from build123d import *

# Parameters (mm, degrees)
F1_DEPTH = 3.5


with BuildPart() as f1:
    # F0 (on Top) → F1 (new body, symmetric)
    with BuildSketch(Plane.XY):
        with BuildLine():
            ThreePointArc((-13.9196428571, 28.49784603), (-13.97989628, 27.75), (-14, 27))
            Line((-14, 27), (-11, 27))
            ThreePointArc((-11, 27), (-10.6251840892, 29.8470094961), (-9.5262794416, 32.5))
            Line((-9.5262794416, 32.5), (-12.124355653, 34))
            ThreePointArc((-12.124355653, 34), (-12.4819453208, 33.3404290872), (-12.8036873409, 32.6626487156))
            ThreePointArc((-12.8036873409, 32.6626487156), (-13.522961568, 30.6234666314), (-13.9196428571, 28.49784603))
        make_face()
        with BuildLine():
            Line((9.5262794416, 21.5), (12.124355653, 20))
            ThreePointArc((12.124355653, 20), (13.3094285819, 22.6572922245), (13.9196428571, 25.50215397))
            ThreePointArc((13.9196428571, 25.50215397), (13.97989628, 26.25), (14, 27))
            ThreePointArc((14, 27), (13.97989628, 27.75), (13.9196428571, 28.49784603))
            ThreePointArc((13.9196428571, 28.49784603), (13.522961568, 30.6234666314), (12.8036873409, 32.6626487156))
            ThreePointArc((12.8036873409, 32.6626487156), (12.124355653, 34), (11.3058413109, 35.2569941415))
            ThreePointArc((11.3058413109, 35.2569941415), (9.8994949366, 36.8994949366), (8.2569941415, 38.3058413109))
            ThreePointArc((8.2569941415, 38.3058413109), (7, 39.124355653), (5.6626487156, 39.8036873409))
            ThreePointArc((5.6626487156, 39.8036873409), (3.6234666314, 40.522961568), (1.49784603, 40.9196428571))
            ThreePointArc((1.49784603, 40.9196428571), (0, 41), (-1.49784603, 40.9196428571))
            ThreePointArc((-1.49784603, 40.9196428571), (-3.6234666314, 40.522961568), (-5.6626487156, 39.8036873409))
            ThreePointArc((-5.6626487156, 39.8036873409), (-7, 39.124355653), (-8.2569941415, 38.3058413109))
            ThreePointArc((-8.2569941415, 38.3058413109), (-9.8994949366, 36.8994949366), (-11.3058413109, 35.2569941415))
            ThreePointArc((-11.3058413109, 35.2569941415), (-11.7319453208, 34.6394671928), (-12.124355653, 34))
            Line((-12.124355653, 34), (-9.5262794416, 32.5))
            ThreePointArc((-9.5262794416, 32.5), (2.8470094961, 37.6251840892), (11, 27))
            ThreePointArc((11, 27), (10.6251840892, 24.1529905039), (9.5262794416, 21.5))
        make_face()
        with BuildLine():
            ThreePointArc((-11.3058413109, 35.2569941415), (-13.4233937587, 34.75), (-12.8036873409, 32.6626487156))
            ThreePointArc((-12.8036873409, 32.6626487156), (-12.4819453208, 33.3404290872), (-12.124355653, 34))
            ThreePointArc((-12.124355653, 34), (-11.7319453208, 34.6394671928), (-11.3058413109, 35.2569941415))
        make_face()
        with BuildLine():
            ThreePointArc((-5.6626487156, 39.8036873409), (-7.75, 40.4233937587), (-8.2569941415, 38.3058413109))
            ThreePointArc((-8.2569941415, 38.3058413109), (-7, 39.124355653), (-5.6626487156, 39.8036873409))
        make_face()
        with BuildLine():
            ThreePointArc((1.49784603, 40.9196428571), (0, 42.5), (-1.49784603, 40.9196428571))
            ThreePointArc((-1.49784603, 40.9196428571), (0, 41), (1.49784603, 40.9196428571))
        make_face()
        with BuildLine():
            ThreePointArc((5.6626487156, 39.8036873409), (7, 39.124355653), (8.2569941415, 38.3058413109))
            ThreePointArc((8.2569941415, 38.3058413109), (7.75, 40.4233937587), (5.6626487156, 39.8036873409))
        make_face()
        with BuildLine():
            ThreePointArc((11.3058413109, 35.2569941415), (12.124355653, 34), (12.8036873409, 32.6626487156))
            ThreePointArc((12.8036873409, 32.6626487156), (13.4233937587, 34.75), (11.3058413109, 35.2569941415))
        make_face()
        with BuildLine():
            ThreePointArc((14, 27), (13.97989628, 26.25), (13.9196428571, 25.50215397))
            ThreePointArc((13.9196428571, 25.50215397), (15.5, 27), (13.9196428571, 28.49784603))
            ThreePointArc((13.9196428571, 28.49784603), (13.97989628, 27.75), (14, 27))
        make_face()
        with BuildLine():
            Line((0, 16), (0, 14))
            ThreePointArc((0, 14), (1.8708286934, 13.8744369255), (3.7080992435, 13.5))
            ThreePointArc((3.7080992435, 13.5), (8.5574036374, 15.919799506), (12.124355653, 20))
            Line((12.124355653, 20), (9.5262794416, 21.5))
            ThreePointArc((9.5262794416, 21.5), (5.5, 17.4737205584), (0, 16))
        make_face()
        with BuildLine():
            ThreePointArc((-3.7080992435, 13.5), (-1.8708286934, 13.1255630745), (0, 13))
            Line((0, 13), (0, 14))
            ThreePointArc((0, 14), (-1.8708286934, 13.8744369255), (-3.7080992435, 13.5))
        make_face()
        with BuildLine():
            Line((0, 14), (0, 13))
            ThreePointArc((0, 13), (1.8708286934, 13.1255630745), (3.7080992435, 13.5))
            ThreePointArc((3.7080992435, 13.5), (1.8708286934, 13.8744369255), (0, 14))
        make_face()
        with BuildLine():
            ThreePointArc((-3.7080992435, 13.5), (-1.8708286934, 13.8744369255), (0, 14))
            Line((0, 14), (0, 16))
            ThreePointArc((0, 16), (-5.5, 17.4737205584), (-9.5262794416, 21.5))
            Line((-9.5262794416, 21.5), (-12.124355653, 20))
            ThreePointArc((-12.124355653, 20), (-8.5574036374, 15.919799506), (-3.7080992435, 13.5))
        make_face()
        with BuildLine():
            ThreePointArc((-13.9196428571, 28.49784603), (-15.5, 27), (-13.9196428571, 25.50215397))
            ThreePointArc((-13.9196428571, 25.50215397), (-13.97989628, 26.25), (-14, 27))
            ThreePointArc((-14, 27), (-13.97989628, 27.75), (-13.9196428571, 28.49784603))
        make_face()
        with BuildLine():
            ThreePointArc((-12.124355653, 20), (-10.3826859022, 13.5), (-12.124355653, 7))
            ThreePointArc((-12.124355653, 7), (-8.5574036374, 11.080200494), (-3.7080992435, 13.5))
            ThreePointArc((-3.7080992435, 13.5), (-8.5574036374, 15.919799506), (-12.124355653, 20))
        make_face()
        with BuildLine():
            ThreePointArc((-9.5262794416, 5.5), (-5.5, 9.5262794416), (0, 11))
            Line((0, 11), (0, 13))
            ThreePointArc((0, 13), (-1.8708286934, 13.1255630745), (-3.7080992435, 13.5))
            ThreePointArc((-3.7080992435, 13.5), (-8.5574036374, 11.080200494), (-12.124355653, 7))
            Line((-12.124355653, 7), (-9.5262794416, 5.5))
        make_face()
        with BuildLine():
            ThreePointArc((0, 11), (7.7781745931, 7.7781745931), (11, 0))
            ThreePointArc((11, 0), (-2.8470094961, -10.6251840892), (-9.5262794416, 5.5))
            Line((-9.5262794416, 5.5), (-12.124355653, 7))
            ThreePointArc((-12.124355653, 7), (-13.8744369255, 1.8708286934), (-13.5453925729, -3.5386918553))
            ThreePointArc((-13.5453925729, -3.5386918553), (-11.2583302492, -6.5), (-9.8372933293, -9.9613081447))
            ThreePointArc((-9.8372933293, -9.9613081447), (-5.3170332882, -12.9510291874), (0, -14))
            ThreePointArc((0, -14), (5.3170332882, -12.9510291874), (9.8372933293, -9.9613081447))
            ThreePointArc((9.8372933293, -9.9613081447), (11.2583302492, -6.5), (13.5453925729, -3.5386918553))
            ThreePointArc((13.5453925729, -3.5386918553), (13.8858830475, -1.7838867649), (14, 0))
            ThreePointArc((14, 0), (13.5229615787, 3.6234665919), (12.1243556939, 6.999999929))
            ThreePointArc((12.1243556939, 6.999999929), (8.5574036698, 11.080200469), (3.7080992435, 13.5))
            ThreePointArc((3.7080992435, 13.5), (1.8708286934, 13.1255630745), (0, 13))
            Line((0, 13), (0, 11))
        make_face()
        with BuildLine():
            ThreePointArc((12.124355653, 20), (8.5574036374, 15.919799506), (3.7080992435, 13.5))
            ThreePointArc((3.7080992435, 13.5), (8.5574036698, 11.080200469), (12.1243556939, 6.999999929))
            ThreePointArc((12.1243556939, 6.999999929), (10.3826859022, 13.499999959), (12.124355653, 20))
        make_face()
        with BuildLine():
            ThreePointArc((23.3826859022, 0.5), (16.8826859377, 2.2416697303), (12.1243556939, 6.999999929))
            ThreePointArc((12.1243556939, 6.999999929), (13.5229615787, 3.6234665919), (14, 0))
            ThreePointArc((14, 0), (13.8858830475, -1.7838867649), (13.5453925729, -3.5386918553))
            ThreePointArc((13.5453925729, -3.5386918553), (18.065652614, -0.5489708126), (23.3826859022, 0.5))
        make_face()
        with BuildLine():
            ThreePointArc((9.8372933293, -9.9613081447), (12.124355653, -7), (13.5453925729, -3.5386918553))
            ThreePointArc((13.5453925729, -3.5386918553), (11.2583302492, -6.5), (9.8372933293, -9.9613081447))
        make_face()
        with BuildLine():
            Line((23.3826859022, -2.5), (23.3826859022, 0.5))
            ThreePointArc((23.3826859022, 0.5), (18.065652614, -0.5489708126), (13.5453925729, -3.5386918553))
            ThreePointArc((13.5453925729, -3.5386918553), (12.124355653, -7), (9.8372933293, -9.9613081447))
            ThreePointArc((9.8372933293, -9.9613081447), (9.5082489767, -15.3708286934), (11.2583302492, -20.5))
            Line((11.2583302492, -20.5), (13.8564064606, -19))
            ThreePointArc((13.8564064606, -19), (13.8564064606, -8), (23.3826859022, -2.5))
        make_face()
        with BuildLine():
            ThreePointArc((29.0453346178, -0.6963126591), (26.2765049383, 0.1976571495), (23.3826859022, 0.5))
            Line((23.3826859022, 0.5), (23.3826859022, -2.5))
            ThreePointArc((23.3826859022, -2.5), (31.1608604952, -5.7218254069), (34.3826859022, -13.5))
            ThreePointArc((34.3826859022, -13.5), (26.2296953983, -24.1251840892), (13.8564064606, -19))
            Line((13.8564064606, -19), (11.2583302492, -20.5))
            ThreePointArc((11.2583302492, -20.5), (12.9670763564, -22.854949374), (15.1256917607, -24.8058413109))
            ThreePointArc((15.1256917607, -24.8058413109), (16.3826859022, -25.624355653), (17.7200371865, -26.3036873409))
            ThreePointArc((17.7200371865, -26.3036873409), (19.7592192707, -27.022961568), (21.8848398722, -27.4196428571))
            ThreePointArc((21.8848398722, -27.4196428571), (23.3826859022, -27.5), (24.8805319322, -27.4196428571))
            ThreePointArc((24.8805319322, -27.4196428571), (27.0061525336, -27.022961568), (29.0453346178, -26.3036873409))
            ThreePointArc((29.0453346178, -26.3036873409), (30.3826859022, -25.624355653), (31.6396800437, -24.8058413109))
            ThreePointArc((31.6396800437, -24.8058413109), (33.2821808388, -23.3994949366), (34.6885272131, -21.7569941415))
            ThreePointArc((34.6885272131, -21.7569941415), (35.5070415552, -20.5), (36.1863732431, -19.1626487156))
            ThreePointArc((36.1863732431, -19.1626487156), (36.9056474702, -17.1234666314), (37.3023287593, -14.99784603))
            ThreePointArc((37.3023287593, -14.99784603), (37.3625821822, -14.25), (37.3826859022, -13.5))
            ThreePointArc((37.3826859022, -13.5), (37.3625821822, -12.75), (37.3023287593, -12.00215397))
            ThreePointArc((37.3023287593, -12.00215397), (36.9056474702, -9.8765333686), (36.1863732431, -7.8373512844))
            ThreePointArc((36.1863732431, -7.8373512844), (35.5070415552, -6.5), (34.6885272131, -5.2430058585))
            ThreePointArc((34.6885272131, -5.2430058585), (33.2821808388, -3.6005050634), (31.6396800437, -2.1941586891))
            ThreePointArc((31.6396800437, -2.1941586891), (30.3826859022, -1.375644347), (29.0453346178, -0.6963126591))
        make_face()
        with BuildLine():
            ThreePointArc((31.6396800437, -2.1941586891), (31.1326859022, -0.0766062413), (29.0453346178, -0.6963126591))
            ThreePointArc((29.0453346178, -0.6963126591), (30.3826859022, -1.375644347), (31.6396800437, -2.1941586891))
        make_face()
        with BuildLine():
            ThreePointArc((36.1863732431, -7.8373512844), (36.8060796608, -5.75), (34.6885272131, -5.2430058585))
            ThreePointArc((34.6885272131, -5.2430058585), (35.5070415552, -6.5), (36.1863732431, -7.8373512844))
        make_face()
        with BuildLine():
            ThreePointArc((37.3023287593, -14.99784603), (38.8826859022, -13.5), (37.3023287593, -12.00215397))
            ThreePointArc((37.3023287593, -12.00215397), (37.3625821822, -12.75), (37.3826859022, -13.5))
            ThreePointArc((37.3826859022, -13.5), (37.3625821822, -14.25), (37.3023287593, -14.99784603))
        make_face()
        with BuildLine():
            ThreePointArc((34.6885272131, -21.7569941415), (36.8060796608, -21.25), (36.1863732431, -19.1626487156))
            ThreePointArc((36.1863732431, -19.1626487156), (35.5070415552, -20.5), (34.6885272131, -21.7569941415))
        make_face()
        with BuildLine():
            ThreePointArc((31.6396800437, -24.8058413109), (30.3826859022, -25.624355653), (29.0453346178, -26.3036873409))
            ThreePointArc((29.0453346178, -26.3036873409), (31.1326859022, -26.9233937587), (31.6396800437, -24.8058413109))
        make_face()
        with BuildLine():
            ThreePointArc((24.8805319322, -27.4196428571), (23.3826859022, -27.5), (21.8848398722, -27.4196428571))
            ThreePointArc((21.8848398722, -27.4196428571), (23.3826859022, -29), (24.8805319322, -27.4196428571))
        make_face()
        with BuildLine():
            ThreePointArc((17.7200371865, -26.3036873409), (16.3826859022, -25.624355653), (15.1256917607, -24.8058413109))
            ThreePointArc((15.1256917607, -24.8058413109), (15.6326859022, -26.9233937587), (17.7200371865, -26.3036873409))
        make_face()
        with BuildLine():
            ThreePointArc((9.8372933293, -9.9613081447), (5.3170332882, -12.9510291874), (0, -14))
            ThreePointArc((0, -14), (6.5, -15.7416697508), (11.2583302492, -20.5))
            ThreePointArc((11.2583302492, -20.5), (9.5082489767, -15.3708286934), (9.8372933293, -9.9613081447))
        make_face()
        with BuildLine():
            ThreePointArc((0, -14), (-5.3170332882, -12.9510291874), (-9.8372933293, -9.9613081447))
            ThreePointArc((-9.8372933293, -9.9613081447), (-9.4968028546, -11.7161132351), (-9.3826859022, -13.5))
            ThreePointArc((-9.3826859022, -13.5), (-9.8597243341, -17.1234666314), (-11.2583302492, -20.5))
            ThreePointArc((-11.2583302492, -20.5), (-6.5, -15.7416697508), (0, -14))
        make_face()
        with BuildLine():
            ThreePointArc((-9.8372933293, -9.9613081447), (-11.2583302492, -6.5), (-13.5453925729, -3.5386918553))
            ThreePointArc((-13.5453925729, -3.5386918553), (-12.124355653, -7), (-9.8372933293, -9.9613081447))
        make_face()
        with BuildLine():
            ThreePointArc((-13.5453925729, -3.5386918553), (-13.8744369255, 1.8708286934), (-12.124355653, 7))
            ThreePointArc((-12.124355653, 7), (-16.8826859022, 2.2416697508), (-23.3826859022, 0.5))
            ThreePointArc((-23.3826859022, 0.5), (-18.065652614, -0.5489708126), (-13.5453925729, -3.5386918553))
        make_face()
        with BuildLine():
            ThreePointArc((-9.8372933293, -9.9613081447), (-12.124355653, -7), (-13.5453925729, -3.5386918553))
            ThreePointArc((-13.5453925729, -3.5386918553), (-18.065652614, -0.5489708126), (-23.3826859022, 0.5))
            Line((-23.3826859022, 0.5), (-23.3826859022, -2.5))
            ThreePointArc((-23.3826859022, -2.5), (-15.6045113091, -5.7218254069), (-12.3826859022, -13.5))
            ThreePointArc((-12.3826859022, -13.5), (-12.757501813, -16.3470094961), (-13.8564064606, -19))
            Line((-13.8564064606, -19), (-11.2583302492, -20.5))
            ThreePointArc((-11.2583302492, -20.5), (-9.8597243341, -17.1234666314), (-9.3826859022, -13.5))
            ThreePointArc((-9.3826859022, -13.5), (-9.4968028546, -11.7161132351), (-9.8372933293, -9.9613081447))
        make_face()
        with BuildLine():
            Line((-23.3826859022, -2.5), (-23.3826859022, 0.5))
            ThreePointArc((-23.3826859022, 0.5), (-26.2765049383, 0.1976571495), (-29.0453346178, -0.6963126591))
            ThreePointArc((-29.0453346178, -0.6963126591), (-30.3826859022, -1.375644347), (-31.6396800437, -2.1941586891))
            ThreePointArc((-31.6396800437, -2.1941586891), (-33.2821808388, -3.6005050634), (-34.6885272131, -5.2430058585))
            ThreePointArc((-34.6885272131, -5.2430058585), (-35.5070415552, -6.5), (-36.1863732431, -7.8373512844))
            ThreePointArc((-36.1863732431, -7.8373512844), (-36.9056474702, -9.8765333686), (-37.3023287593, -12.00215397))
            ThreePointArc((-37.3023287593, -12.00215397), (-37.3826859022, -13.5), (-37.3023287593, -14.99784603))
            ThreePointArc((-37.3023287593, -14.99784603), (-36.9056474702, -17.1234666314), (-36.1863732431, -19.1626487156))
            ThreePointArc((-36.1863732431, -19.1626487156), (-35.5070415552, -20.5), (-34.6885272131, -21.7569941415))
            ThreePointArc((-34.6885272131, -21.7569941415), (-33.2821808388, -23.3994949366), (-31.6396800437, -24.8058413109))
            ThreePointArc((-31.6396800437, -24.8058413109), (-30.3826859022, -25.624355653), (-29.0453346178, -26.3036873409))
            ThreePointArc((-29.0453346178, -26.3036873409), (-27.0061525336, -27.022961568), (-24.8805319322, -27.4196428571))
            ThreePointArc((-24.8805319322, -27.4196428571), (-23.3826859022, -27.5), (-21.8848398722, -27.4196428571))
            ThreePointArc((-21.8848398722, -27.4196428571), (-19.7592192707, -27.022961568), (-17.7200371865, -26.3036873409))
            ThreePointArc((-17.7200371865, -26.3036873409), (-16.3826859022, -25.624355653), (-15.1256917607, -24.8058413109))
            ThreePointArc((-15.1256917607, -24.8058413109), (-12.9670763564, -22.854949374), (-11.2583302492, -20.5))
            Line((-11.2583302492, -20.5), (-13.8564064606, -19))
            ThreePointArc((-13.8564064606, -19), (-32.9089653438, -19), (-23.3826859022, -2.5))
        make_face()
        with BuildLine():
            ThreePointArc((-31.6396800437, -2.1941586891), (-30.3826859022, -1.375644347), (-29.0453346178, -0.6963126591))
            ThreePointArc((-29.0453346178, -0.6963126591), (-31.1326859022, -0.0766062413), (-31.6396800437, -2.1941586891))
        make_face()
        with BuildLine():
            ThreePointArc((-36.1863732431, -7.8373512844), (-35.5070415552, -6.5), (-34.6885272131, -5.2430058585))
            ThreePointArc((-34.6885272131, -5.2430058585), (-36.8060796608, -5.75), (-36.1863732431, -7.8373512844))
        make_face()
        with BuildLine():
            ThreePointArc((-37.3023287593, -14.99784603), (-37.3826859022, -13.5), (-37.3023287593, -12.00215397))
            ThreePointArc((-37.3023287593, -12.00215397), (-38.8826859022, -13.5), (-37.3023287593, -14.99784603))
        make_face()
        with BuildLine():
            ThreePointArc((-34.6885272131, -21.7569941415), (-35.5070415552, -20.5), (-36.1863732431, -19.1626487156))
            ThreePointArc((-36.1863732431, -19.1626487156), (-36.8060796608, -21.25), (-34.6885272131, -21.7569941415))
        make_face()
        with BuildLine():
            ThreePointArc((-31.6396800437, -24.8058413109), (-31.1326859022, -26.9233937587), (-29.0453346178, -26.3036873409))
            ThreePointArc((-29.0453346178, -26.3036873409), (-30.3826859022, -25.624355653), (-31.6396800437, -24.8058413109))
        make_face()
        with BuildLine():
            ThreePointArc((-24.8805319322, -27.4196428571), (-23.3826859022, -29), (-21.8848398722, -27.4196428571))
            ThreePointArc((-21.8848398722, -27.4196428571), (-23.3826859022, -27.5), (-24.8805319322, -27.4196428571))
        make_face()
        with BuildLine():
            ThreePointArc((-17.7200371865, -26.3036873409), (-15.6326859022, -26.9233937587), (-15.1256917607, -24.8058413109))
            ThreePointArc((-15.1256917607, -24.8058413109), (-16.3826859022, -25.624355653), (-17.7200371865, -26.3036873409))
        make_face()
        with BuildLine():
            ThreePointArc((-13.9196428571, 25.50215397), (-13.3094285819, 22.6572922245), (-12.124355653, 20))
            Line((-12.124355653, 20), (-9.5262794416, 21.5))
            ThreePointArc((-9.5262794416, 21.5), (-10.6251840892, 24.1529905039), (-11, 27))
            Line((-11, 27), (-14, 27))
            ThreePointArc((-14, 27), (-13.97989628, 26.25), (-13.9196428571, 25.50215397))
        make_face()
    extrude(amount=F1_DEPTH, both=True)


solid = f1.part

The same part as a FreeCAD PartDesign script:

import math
import FreeCAD as App
import Part
import Sketcher

V = App.Vector
Q = App.Units.Quantity

doc = App.newDocument("Part")
body = doc.addObject("PartDesign::Body", "Body")

# Sketch on XY plane
sketch1 = body.newObject("Sketcher::SketchObject", "Sketch")
sketch1.AttachmentSupport = (doc.getObject("XY_Plane"), [""])
sketch1.MapMode = "FlatFace"
sketch1.addGeometry([
    Part.ArcOfCircle(Part.Circle(V(-23.4, 13.5, 0), V(0, 0, 1), 13), math.radians(-90), math.radians(30)),  # 0
    Part.ArcOfCircle(Part.Circle(V(-23.4, -13.5, 0), V(0, 0, 1), 14), math.radians(90), math.radians(114)),  # 1
    Part.ArcOfCircle(Part.Circle(V(-30.4, -1.4, 0), V(0, 0, 1), 1.5), math.radians(27), math.radians(213)),  # 2
    Part.ArcOfCircle(Part.Circle(V(-23.4, -13.5, 0), V(0, 0, 1), 14), math.radians(126.14), math.radians(143.86)),  # 3
    Part.ArcOfCircle(Part.Circle(V(-35.5, -6.5, 0), V(0, 0, 1), 1.5), math.radians(57), math.radians(243)),  # 4
    Part.ArcOfCircle(Part.Circle(V(-23.4, -13.5, 0), V(0, 0, 1), 14), math.radians(156.14), math.radians(173.86)),  # 5
    Part.ArcOfCircle(Part.Circle(V(-37.4, -13.5, 0), V(0, 0, 1), 1.5), math.radians(87), math.radians(273)),  # 6
    Part.ArcOfCircle(Part.Circle(V(-23.4, -13.5, 0), V(0, 0, 1), 14), math.radians(-173.86), math.radians(-156.14)),  # 7
    Part.ArcOfCircle(Part.Circle(V(-35.5, -20.5, 0), V(0, 0, 1), 1.5), math.radians(117), math.radians(303)),  # 8
    Part.ArcOfCircle(Part.Circle(V(-23.4, -13.5, 0), V(0, 0, 1), 14), math.radians(-143.86), math.radians(-126.14)),  # 9
    Part.ArcOfCircle(Part.Circle(V(-30.4, -25.6, 0), V(0, 0, 1), 1.5), math.radians(147), math.radians(333)),  # 10
    Part.ArcOfCircle(Part.Circle(V(-23.4, -13.5, 0), V(0, 0, 1), 14), math.radians(-113.86), math.radians(-96.14)),  # 11
    Part.ArcOfCircle(Part.Circle(V(-23.4, -27.5, 0), V(0, 0, 1), 1.5), math.radians(177), math.radians(363)),  # 12
    Part.ArcOfCircle(Part.Circle(V(-23.4, -13.5, 0), V(0, 0, 1), 14), math.radians(-83.86), math.radians(-66.14)),  # 13
    Part.ArcOfCircle(Part.Circle(V(-16.4, -25.6, 0), V(0, 0, 1), 1.5), math.radians(-153), math.radians(33)),  # 14
    Part.ArcOfCircle(Part.Circle(V(-23.4, -13.5, 0), V(0, 0, 1), 14), math.radians(-54), math.radians(-30)),  # 15
    Part.ArcOfCircle(Part.Circle(V(0, -27, 0), V(0, 0, 1), 13), math.radians(30), math.radians(150)),  # 16
    Part.ArcOfCircle(Part.Circle(V(23.4, -13.5, 0), V(0, 0, 1), 14), math.radians(-150), math.radians(-126)),  # 17
    Part.ArcOfCircle(Part.Circle(V(16.4, -25.6, 0), V(0, 0, 1), 1.5), math.radians(147), math.radians(333)),  # 18
    Part.ArcOfCircle(Part.Circle(V(23.4, -13.5, 0), V(0, 0, 1), 14), math.radians(-113.86), math.radians(-96.14)),  # 19
    Part.ArcOfCircle(Part.Circle(V(23.4, -27.5, 0), V(0, 0, 1), 1.5), math.radians(177), math.radians(363)),  # 20
    Part.ArcOfCircle(Part.Circle(V(23.4, -13.5, 0), V(0, 0, 1), 14), math.radians(-83.86), math.radians(-66.14)),  # 21
    Part.ArcOfCircle(Part.Circle(V(30.4, -25.6, 0), V(0, 0, 1), 1.5), math.radians(-153), math.radians(33)),  # 22
    Part.ArcOfCircle(Part.Circle(V(23.4, -13.5, 0), V(0, 0, 1), 14), math.radians(-53.86), math.radians(-36.14)),  # 23
    Part.ArcOfCircle(Part.Circle(V(35.5, -20.5, 0), V(0, 0, 1), 1.5), math.radians(-123), math.radians(63)),  # 24
    Part.ArcOfCircle(Part.Circle(V(23.4, -13.5, 0), V(0, 0, 1), 14), math.radians(-23.86), math.radians(-6.14)),  # 25
    Part.ArcOfCircle(Part.Circle(V(37.4, -13.5, 0), V(0, 0, 1), 1.5), math.radians(-93), math.radians(93)),  # 26
    Part.ArcOfCircle(Part.Circle(V(23.4, -13.5, 0), V(0, 0, 1), 14), math.radians(6.14), math.radians(23.86)),  # 27
    Part.ArcOfCircle(Part.Circle(V(35.5, -6.5, 0), V(0, 0, 1), 1.5), math.radians(-63), math.radians(123)),  # 28
    Part.ArcOfCircle(Part.Circle(V(23.4, -13.5, 0), V(0, 0, 1), 14), math.radians(36.14), math.radians(53.86)),  # 29
    Part.ArcOfCircle(Part.Circle(V(30.4, -1.4, 0), V(0, 0, 1), 1.5), math.radians(-33), math.radians(153)),  # 30
    Part.ArcOfCircle(Part.Circle(V(23.4, -13.5, 0), V(0, 0, 1), 14), math.radians(66), math.radians(90)),  # 31
    Part.ArcOfCircle(Part.Circle(V(23.4, 13.5, 0), V(0, 0, 1), 13), math.radians(-150), math.radians(-90)),  # 32
    Part.ArcOfCircle(Part.Circle(V(23.4, 13.5, 0), V(0, 0, 1), 13), math.radians(150), math.radians(210)),  # 33
    Part.ArcOfCircle(Part.Circle(V(0, 27, 0), V(0, 0, 1), 14), math.radians(-30), math.radians(-6)),  # 34
    Part.ArcOfCircle(Part.Circle(V(14, 27, 0), V(0, 0, 1), 1.5), math.radians(-93), math.radians(93)),  # 35
    Part.ArcOfCircle(Part.Circle(V(0, 27, 0), V(0, 0, 1), 14), math.radians(6.14), math.radians(23.86)),  # 36
    Part.ArcOfCircle(Part.Circle(V(12.1, 34, 0), V(0, 0, 1), 1.5), math.radians(-63), math.radians(123)),  # 37
    Part.ArcOfCircle(Part.Circle(V(0, 27, 0), V(0, 0, 1), 14), math.radians(36.14), math.radians(53.86)),  # 38
    Part.ArcOfCircle(Part.Circle(V(7, 39.1, 0), V(0, 0, 1), 1.5), math.radians(-33), math.radians(153)),  # 39
    Part.ArcOfCircle(Part.Circle(V(0, 27, 0), V(0, 0, 1), 14), math.radians(66.14), math.radians(83.86)),  # 40
    Part.ArcOfCircle(Part.Circle(V(0, 41, 0), V(0, 0, 1), 1.5), math.radians(-3), math.radians(183)),  # 41
    Part.ArcOfCircle(Part.Circle(V(0, 27, 0), V(0, 0, 1), 14), math.radians(96.14), math.radians(113.86)),  # 42
    Part.ArcOfCircle(Part.Circle(V(-7, 39.1, 0), V(0, 0, 1), 1.5), math.radians(27), math.radians(213)),  # 43
    Part.ArcOfCircle(Part.Circle(V(0, 27, 0), V(0, 0, 1), 14), math.radians(126.14), math.radians(143.86)),  # 44
    Part.ArcOfCircle(Part.Circle(V(-12.1, 34, 0), V(0, 0, 1), 1.5), math.radians(57), math.radians(243)),  # 45
    Part.ArcOfCircle(Part.Circle(V(0, 27, 0), V(0, 0, 1), 14), math.radians(156.14), math.radians(173.86)),  # 46
    Part.ArcOfCircle(Part.Circle(V(-14, 27, 0), V(0, 0, 1), 1.5), math.radians(87), math.radians(273)),  # 47
    Part.ArcOfCircle(Part.Circle(V(0, 27, 0), V(0, 0, 1), 14), math.radians(-174), math.radians(-150)),  # 48
    Part.ArcOfCircle(Part.Circle(V(0, 27, 0), V(0, 0, 1), 11), math.radians(150), math.radians(180)),  # 49
    Part.ArcOfCircle(Part.Circle(V(0, 27, 0), V(0, 0, 1), 11), math.radians(0), math.radians(150)),  # 50
    Part.ArcOfCircle(Part.Circle(V(0, 27, 0), V(0, 0, 1), 11), math.radians(-30), math.radians(0)),  # 51
    Part.ArcOfCircle(Part.Circle(V(0, 27, 0), V(0, 0, 1), 11), math.radians(-90), math.radians(-30)),  # 52
    Part.ArcOfCircle(Part.Circle(V(0, 27, 0), V(0, 0, 1), 11), math.radians(-150), math.radians(-90)),  # 53
    Part.ArcOfCircle(Part.Circle(V(0, 27, 0), V(0, 0, 1), 11), math.radians(180), math.radians(210)),  # 54
    Part.ArcOfCircle(Part.Circle(V(-23.4, -13.5, 0), V(0, 0, 1), 11), math.radians(0), math.radians(90)),  # 55
    Part.ArcOfCircle(Part.Circle(V(-23.4, -13.5, 0), V(0, 0, 1), 11), math.radians(-30), math.radians(0)),  # 56
    Part.ArcOfCircle(Part.Circle(V(-23.4, -13.5, 0), V(0, 0, 1), 11), math.radians(90), math.radians(330)),  # 57
    Part.ArcOfCircle(Part.Circle(V(23.4, -13.5, 0), V(0, 0, 1), 11), math.radians(90), math.radians(210)),  # 58
    Part.ArcOfCircle(Part.Circle(V(23.4, -13.5, 0), V(0, 0, 1), 11), math.radians(0), math.radians(90)),  # 59
    Part.ArcOfCircle(Part.Circle(V(23.4, -13.5, 0), V(0, 0, 1), 11), math.radians(-150), math.radians(0)),  # 60
    Part.ArcOfCircle(Part.Circle(V(0, 0, 0), V(0, 0, 1), 11), math.radians(0), math.radians(90)),  # 61
    Part.ArcOfCircle(Part.Circle(V(0, 0, 0), V(0, 0, 1), 11), math.radians(90), math.radians(360)),  # 62
], False)
sketch1.addConstraint([
    Sketcher.Constraint("Tangent", 0, 1, 1, 1),
    Sketcher.Constraint("Coincident", 1, 2, 2, 1),
    Sketcher.Constraint("Coincident", 2, 2, 3, 1),
    Sketcher.Constraint("Coincident", 3, 2, 4, 1),
    Sketcher.Constraint("Coincident", 4, 2, 5, 1),
    Sketcher.Constraint("Coincident", 5, 2, 6, 1),
    Sketcher.Constraint("Coincident", 6, 2, 7, 1),
    Sketcher.Constraint("Coincident", 7, 2, 8, 1),
    Sketcher.Constraint("Coincident", 8, 2, 9, 1),
    Sketcher.Constraint("Coincident", 9, 2, 10, 1),
    Sketcher.Constraint("Coincident", 10, 2, 11, 1),
    Sketcher.Constraint("Coincident", 11, 2, 12, 1),
    Sketcher.Constraint("Coincident", 12, 2, 13, 1),
    Sketcher.Constraint("Coincident", 13, 2, 14, 1),
    Sketcher.Constraint("Coincident", 14, 2, 15, 1),
    Sketcher.Constraint("Tangent", 15, 2, 16, 2),
    Sketcher.Constraint("Tangent", 16, 1, 17, 1),
    Sketcher.Constraint("Coincident", 17, 2, 18, 1),
    Sketcher.Constraint("Coincident", 18, 2, 19, 1),
    Sketcher.Constraint("Coincident", 19, 2, 20, 1),
    Sketcher.Constraint("Coincident", 20, 2, 21, 1),
    Sketcher.Constraint("Coincident", 21, 2, 22, 1),
    Sketcher.Constraint("Coincident", 22, 2, 23, 1),
    Sketcher.Constraint("Coincident", 23, 2, 24, 1),
    Sketcher.Constraint("Coincident", 24, 2, 25, 1),
    Sketcher.Constraint("Coincident", 25, 2, 26, 1),
    Sketcher.Constraint("Coincident", 26, 2, 27, 1),
    Sketcher.Constraint("Coincident", 27, 2, 28, 1),
    Sketcher.Constraint("Coincident", 28, 2, 29, 1),
    Sketcher.Constraint("Coincident", 29, 2, 30, 1),
    Sketcher.Constraint("Coincident", 30, 2, 31, 1),
    Sketcher.Constraint("Tangent", 31, 2, 32, 2),
    Sketcher.Constraint("Tangent", 32, 1, 33, 2),
    Sketcher.Constraint("Tangent", 33, 1, 34, 1),
    Sketcher.Constraint("Coincident", 34, 2, 35, 1),
    Sketcher.Constraint("Coincident", 35, 2, 36, 1),
    Sketcher.Constraint("Coincident", 36, 2, 37, 1),
    Sketcher.Constraint("Coincident", 37, 2, 38, 1),
    Sketcher.Constraint("Coincident", 38, 2, 39, 1),
    Sketcher.Constraint("Coincident", 39, 2, 40, 1),
    Sketcher.Constraint("Coincident", 40, 2, 41, 1),
    Sketcher.Constraint("Coincident", 41, 2, 42, 1),
    Sketcher.Constraint("Coincident", 42, 2, 43, 1),
    Sketcher.Constraint("Coincident", 43, 2, 44, 1),
    Sketcher.Constraint("Coincident", 44, 2, 45, 1),
    Sketcher.Constraint("Coincident", 45, 2, 46, 1),
    Sketcher.Constraint("Coincident", 46, 2, 47, 1),
    Sketcher.Constraint("Coincident", 47, 2, 48, 1),
    Sketcher.Constraint("Tangent", 48, 2, 0, 2),
    Sketcher.Constraint("Tangent", 49, 1, 50, 2),
    Sketcher.Constraint("Tangent", 50, 1, 51, 2),
    Sketcher.Constraint("Tangent", 51, 1, 52, 2),
    Sketcher.Constraint("Tangent", 52, 1, 53, 2),
    Sketcher.Constraint("Tangent", 53, 1, 54, 2),
    Sketcher.Constraint("Tangent", 54, 1, 49, 2),
    Sketcher.Constraint("Tangent", 55, 1, 56, 2),
    Sketcher.Constraint("Tangent", 56, 1, 57, 2),
    Sketcher.Constraint("Tangent", 57, 1, 55, 2),
    Sketcher.Constraint("Tangent", 58, 1, 59, 2),
    Sketcher.Constraint("Tangent", 59, 1, 60, 2),
    Sketcher.Constraint("Tangent", 60, 1, 58, 2),
    Sketcher.Constraint("Tangent", 61, 1, 62, 2),
    Sketcher.Constraint("Coincident", 62, 1, 61, 2),
    Sketcher.Constraint("Coincident", 61, 3, -1, 1),
    Sketcher.Constraint("Coincident", 3, 3, 1, 3),
    Sketcher.Constraint("Coincident", 5, 3, 1, 3),
    Sketcher.Constraint("Coincident", 7, 3, 1, 3),
    Sketcher.Constraint("Coincident", 9, 3, 1, 3),
    Sketcher.Constraint("Coincident", 11, 3, 1, 3),
    Sketcher.Constraint("Coincident", 13, 3, 1, 3),
    Sketcher.Constraint("Coincident", 15, 3, 1, 3),
    Sketcher.Constraint("Coincident", 19, 3, 17, 3),
    Sketcher.Constraint("Coincident", 21, 3, 17, 3),
    Sketcher.Constraint("Coincident", 23, 3, 17, 3),
    Sketcher.Constraint("Coincident", 25, 3, 17, 3),
    Sketcher.Constraint("Coincident", 27, 3, 17, 3),
    Sketcher.Constraint("Coincident", 29, 3, 17, 3),
    Sketcher.Constraint("Coincident", 31, 3, 17, 3),
    Sketcher.Constraint("Coincident", 36, 3, 34, 3),
    Sketcher.Constraint("Coincident", 38, 3, 34, 3),
    Sketcher.Constraint("Coincident", 40, 3, 34, 3),
    Sketcher.Constraint("Coincident", 42, 3, 34, 3),
    Sketcher.Constraint("Coincident", 44, 3, 34, 3),
    Sketcher.Constraint("Coincident", 46, 3, 34, 3),
    Sketcher.Constraint("Coincident", 48, 3, 34, 3),
    Sketcher.Constraint("Coincident", 49, 3, 34, 3),
    Sketcher.Constraint("Coincident", 51, 3, 34, 3),
    Sketcher.Constraint("Coincident", 55, 3, 1, 3),
    Sketcher.Constraint("Coincident", 58, 3, 17, 3),
    Sketcher.Constraint("Equal", 1, 3),
    Sketcher.Constraint("Equal", 2, 4),
    Sketcher.Constraint("Equal", 3, 5),
    Sketcher.Constraint("Equal", 4, 6),
    Sketcher.Constraint("Equal", 5, 7),
    Sketcher.Constraint("Equal", 6, 8),
    Sketcher.Constraint("Equal", 7, 9),
    Sketcher.Constraint("Equal", 8, 10),
    Sketcher.Constraint("Equal", 9, 11),
    Sketcher.Constraint("Equal", 10, 12),
    Sketcher.Constraint("Equal", 11, 13),
    Sketcher.Constraint("Equal", 12, 14),
    Sketcher.Constraint("Equal", 13, 15),
    Sketcher.Constraint("Equal", 0, 16),
    Sketcher.Constraint("Equal", 15, 17),
    Sketcher.Constraint("Equal", 14, 18),
    Sketcher.Constraint("Equal", 17, 19),
    Sketcher.Constraint("Equal", 18, 20),
    Sketcher.Constraint("Equal", 19, 21),
    Sketcher.Constraint("Equal", 20, 22),
    Sketcher.Constraint("Equal", 21, 23),
    Sketcher.Constraint("Equal", 22, 24),
    Sketcher.Constraint("Equal", 23, 25),
    Sketcher.Constraint("Equal", 24, 26),
    Sketcher.Constraint("Equal", 25, 27),
    Sketcher.Constraint("Equal", 26, 28),
    Sketcher.Constraint("Equal", 27, 29),
    Sketcher.Constraint("Equal", 28, 30),
    Sketcher.Constraint("Equal", 29, 31),
    Sketcher.Constraint("Equal", 16, 32),
    Sketcher.Constraint("Equal", 32, 33),
    Sketcher.Constraint("Equal", 31, 34),
    Sketcher.Constraint("Equal", 30, 35),
    Sketcher.Constraint("Equal", 34, 36),
    Sketcher.Constraint("Equal", 35, 37),
    Sketcher.Constraint("Equal", 36, 38),
    Sketcher.Constraint("Equal", 37, 39),
    Sketcher.Constraint("Equal", 38, 40),
    Sketcher.Constraint("Equal", 39, 41),
    Sketcher.Constraint("Equal", 40, 42),
    Sketcher.Constraint("Equal", 41, 43),
    Sketcher.Constraint("Equal", 42, 44),
    Sketcher.Constraint("Equal", 43, 45),
    Sketcher.Constraint("Equal", 44, 46),
    Sketcher.Constraint("Equal", 45, 47),
    Sketcher.Constraint("Equal", 46, 48),
    Sketcher.Constraint("Equal", 51, 52),
    Sketcher.Constraint("Equal", 54, 55),
    Sketcher.Constraint("Equal", 57, 58),
    Sketcher.Constraint("Equal", 60, 61),
    Sketcher.Constraint("Symmetric", 0, 3, 17, 3, -1, 1),
    Sketcher.Constraint("Symmetric", 1, 3, 17, 3, -2),
    Sketcher.Constraint("Symmetric", 14, 3, 18, 3, -2),
    Sketcher.Constraint("Symmetric", 12, 3, 20, 3, -2),
    Sketcher.Constraint("Symmetric", 10, 3, 22, 3, -2),
    Sketcher.Constraint("Symmetric", 8, 3, 24, 3, -2),
    Sketcher.Constraint("Symmetric", 6, 3, 26, 3, -2),
    Sketcher.Constraint("Symmetric", 4, 3, 28, 3, -2),
    Sketcher.Constraint("Symmetric", 2, 3, 30, 3, -2),
    Sketcher.Constraint("Symmetric", 39, 3, 43, 3, -2),
    Sketcher.Constraint("Symmetric", 37, 3, 45, 3, -2),
    Sketcher.Constraint("Symmetric", 35, 3, 47, 3, -2),
    Sketcher.Constraint("Symmetric", 40, 2, 41, 2, -2),
    Sketcher.Constraint("PointOnObject", 52, 1, -2),
    Sketcher.Constraint("PointOnObject", 61, 1, -1),
    Sketcher.Constraint("PointOnObject", 62, 1, -2),
    Sketcher.Constraint("Horizontal", 5, 3, 6, 3),
    Sketcher.Constraint("Horizontal", 10, 3, 14, 3),
    Sketcher.Constraint("Horizontal", 34, 3, 35, 3),
    Sketcher.Constraint("Horizontal", 11, 2, 12, 2),
    Sketcher.Constraint("Horizontal", 10, 2, 13, 2),
    Sketcher.Constraint("Horizontal", 24, 3, 15, 2),
    Sketcher.Constraint("Horizontal", 54, 3, 50, 1),
    Sketcher.Constraint("Horizontal", 51, 1, 53, 1),
    Sketcher.Constraint("Horizontal", 50, 1, 54, 1),
    Sketcher.Constraint("Horizontal", 60, 3, 55, 1),
    Sketcher.Constraint("Horizontal", 55, 1, 59, 1),
    Sketcher.Constraint("Horizontal", 56, 1, 60, 1),
    Sketcher.Constraint("Vertical", 4, 3, 8, 3),
    Sketcher.Constraint("Vertical", 2, 3, 10, 3),
    Sketcher.Constraint("Vertical", 4, 2, 7, 2),
    Sketcher.Constraint("Vertical", 2, 2, 9, 2),
    Sketcher.Constraint("Vertical", 37, 3, 32, 1),
    Sketcher.Constraint("Vertical", 32, 1, 33, 1),
    Sketcher.Constraint("Vertical", 49, 1, 53, 1),
    Sketcher.Constraint("Vertical", 0, 1, 57, 1),
    Sketcher.Constraint("Vertical", 31, 2, 58, 1),
    Sketcher.Constraint("Radius", 0, Q("13 mm")),
    Sketcher.Constraint("Radius", 1, Q("14 mm")),
    Sketcher.Constraint("Radius", 49, Q("11 mm")),
    Sketcher.Constraint("Radius", 2, Q("1.5 mm")),
    Sketcher.Constraint("DistanceY", 16, 3, -1, 1, Q("27 mm")),
    Sketcher.Constraint("DistanceX", -1, 1, 35, 3, Q("14 mm")),
    Sketcher.Constraint("DistanceY", -1, 1, 37, 3, Q("34 mm")),
    Sketcher.Constraint("DistanceX", -1, 1, 39, 3, Q("7 mm")),
    Sketcher.Constraint("DistanceY", -1, 1, 41, 3, Q("41 mm")),
    Sketcher.Constraint("DistanceY", 56, 1, -1, 1, Q("19 mm")),
    Sketcher.Constraint("DistanceY", 12, 3, -1, 1, Q("27.5 mm")),
    Sketcher.Constraint("DistanceY", -1, 1, 49, 1, Q("32.5 mm")),
    Sketcher.Constraint("DistanceX", 4, 3, -1, 1, Q("35.507042 mm")),
    Sketcher.Constraint("DistanceX", 2, 2, -1, 1, Q("31.63968 mm")),
    Sketcher.Constraint("DistanceY", -1, 1, 38, 2, Q("38.305841 mm")),
    Sketcher.Constraint("DistanceX", 2, 3, -1, 1, Q("30.382686 mm")),
    Sketcher.Constraint("DistanceX", 6, 3, -1, 1, Q("37.382686 mm")),
])
pad1 = body.newObject("PartDesign::Pad", "Pad")
pad1.Profile = sketch1
pad1.Length = 7
pad1.Midplane = True

doc.recompute()
